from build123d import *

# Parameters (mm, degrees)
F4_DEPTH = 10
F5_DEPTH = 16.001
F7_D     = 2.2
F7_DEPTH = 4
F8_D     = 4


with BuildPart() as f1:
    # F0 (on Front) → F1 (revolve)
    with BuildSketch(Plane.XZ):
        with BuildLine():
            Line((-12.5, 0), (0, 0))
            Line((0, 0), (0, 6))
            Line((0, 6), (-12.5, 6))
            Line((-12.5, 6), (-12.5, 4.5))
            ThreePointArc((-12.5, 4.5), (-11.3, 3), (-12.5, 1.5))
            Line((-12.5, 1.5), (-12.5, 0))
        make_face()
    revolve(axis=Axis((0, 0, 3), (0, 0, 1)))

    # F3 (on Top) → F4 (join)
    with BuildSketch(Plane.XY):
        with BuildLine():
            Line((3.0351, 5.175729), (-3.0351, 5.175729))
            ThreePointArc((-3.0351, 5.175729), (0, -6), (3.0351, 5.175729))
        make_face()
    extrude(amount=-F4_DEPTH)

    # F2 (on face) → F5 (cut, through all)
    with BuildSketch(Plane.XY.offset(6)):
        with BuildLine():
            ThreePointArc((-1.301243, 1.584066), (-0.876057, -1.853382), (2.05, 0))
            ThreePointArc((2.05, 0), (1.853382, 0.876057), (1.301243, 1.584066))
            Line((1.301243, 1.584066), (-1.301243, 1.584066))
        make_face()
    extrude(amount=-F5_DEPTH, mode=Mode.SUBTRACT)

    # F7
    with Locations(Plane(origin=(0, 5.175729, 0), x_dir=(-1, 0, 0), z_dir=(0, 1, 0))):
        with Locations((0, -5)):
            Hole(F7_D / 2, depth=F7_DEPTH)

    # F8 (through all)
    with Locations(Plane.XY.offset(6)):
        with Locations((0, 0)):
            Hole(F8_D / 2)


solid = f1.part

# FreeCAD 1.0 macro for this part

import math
import FreeCAD as App
import Part
import Sketcher
from FreeCAD import Vector
Q = App.Units.Quantity

doc = App.newDocument("Part")
body = doc.addObject("PartDesign::Body", "Body")

# Sketch on XZ plane
sketch1 = body.newObject("Sketcher::SketchObject", "Sketch")
sketch1.AttachmentSupport = (doc.getObject("XZ_Plane"), [""])
sketch1.MapMode = "FlatFace"
sketch1.addGeometry([
    Part.LineSegment(Vector(-12.5, 0, 0), Vector(0, 0, 0)),  # 0
    Part.LineSegment(Vector(0, 0, 0), Vector(0, 6, 0)),  # 1
    Part.LineSegment(Vector(0, 6, 0), Vector(-12.5, 6, 0)),  # 2
    Part.LineSegment(Vector(-12.5, 6, 0), Vector(-12.5, 4.5, 0)),  # 3
    Part.ArcOfCircle(Part.Circle(Vector(-12.8375, 3, 0), Vector(0, 0, 1), 1.5375), math.radians(-77.319617), math.radians(77.319617)),  # 4
    Part.LineSegment(Vector(-12.5, 1.5, 0), Vector(-12.5, 0, 0)),  # 5
], False)
sketch1.addConstraint([
    Sketcher.Constraint("Coincident", 0, 2, 1, 1),
    Sketcher.Constraint("Coincident", 1, 2, 2, 1),
    Sketcher.Constraint("Coincident", 2, 2, 3, 1),
    Sketcher.Constraint("Coincident", 3, 2, 4, 2),
    Sketcher.Constraint("Coincident", 4, 1, 5, 1),
    Sketcher.Constraint("Coincident", 5, 2, 0, 1),
    Sketcher.Constraint("Horizontal", 0),
    Sketcher.Constraint("Vertical", 1),
    Sketcher.Constraint("Horizontal", 2),
    Sketcher.Constraint("Vertical", 3),
    Sketcher.Constraint("Vertical", 5),
    Sketcher.Constraint("Coincident", 0, 2, -1, 1),
    Sketcher.Constraint("Vertical", 3, 2, 4, 1),
    Sketcher.Constraint("Equal", 3, 5),
    Sketcher.Constraint("DistanceY", 1, 1, 1, 2, Q("6 mm")),
    Sketcher.Constraint("DistanceX", 0, 1, 0, 2, Q("12.5 mm")),
    Sketcher.Constraint("DistanceY", 3, 2, 3, 1, Q("1.5 mm")),
    Sketcher.Constraint("Radius", 4, Q("1.5375 mm")),
])
revolution = body.newObject("PartDesign::Revolution", "Revolution")
revolution.Profile = sketch1
revolution.ReferenceAxis = (sketch1, ["V_Axis"])
revolution.Angle = 360

# Sketch on XY plane
sketch2 = body.newObject("Sketcher::SketchObject", "Sketch001")
sketch2.AttachmentSupport = (doc.getObject("XY_Plane"), [""])
sketch2.MapMode = "FlatFace"
sketch2.addGeometry([
    Part.LineSegment(Vector(3.0351, 5.175729, 0), Vector(-3.0351, 5.175729, 0)),
    Part.ArcOfCircle(Part.Circle(Vector(0, 0, 0), Vector(0, 0, 1), 6), math.radians(120.387793), math.radians(419.612207)),
], False)
sketch2.addConstraint([
    Sketcher.Constraint("Coincident", 0, 1, 1, 2),
    Sketcher.Constraint("Coincident", 1, 1, 0, 2),
    Sketcher.Constraint("Horizontal", 0),
    Sketcher.Constraint("Coincident", 1, 3, -1, 1),
    Sketcher.Constraint("Radius", 1, Q("6 mm")),
    Sketcher.Constraint("DistanceX", 0, 2, 0, 1, Q("6.0702 mm")),
])
pad1 = body.newObject("PartDesign::Pad", "Pad")
pad1.Profile = sketch2
pad1.Length = 10
pad1.Reversed = True

# Sketch on XY plane
sketch3 = body.newObject("Sketcher::SketchObject", "Sketch002")
sketch3.AttachmentSupport = (doc.getObject("XY_Plane"), [""])
sketch3.MapMode = "FlatFace"
sketch3.AttachmentOffset = App.Placement(Vector(0, 0, 6), App.Rotation())
sketch3.addGeometry([
    Part.ArcOfCircle(Part.Circle(Vector(0, 0, 0), Vector(0, 0, 1), 2.05), math.radians(129.401649), math.radians(360.000009)),
    Part.ArcOfCircle(Part.Circle(Vector(0.000004, 0.000001, 0), Vector(0, 0, 1), 2.049996), math.radians(-0.000034), math.radians(50.598404)),
    Part.LineSegment(Vector(1.301243, 1.584066, 0), Vector(-1.301243, 1.584066, 0)),
], False)
sketch3.addConstraint([
    Sketcher.Constraint("Tangent", 0, 2, 1, 1),
    Sketcher.Constraint("Coincident", 1, 2, 2, 1),
    Sketcher.Constraint("Coincident", 2, 2, 0, 1),
    Sketcher.Constraint("Horizontal", 2),
    Sketcher.Constraint("Coincident", 0, 3, -1, 1),
    Sketcher.Constraint("PointOnObject", 0, 2, -1),
    Sketcher.Constraint("Radius", 0, Q("2.05 mm")),
    Sketcher.Constraint("Radius", 1, Q("2.049996 mm")),
    Sketcher.Constraint("DistanceX", 2, 2, 2, 1, Q("2.602486 mm")),
])
pocket1 = body.newObject("PartDesign::Pocket", "Pocket")
pocket1.Profile = sketch3
pocket1.Type = "ThroughAll"

# Sketch on XZ plane
sketch4 = body.newObject("Sketcher::SketchObject", "Sketch003")
sketch4.AttachmentSupport = (doc.getObject("XZ_Plane"), [""])
sketch4.MapMode = "FlatFace"
sketch4.AttachmentOffset = App.Placement(Vector(0, 0, -5.175729), App.Rotation())
sketch4.addGeometry(Part.Circle(Vector(0, -5, 0), Vector(0, 0, 1), 1.1), False)
sketch4.addConstraint([
    Sketcher.Constraint("PointOnObject", 0, 3, -2),
    Sketcher.Constraint("Diameter", 0, Q("2.2 mm")),
    Sketcher.Constraint("DistanceY", 0, 3, -1, 1, Q("5 mm")),
])
doc.recompute()
hole = body.newObject("PartDesign::Hole", "Hole")
hole.Profile = sketch4
hole.ThreadType = "None"
hole.Diameter = 2.2
hole.DepthType = "Dimension"
hole.Depth = 4
hole.DrillPoint = "Flat"
hole.Reversed = True

# Sketch on XY plane
sketch5 = body.newObject("Sketcher::SketchObject", "Sketch004")
sketch5.AttachmentSupport = (doc.getObject("XY_Plane"), [""])
sketch5.MapMode = "FlatFace"
sketch5.AttachmentOffset = App.Placement(Vector(0, 0, 6), App.Rotation())
sketch5.addGeometry(Part.Circle(Vector(0, 0, 0), Vector(0, 0, 1), 2), False)
sketch5.addConstraint([
    Sketcher.Constraint("Coincident", 0, 3, -1, 1),
    Sketcher.Constraint("Diameter", 0, Q("4 mm")),
])
doc.recompute()
hole2 = body.newObject("PartDesign::Hole", "Hole001")
hole2.Profile = sketch5
hole2.ThreadType = "None"
hole2.Diameter = 4
hole2.DepthType = "ThroughAll"

doc.recompute()
